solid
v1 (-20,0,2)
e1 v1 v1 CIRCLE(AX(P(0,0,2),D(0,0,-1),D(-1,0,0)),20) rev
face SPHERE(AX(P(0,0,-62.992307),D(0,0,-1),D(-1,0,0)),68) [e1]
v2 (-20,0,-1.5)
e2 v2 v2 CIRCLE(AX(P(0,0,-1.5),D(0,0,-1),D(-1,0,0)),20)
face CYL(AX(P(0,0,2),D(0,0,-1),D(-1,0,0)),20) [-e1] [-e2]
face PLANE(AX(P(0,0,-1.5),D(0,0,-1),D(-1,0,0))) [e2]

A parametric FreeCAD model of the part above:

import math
import FreeCAD as App
import Part
import Sketcher
from FreeCAD import Vector

doc = App.newDocument("Part")
body = doc.addObject("PartDesign::Body", "Body")

# Sketch on XY plane
sketch1 = body.newObject("Sketcher::SketchObject", "Sketch")
sketch1.AttachmentSupport = (doc.getObject("XY_Plane"), [""])
sketch1.MapMode = "FlatFace"
sketch1.addGeometry(Part.Circle(Vector(0, 0, 0), Vector(0, 0, 1), 20), False)
sketch1.addConstraint([
    Sketcher.Constraint("Coincident", 0, 3, -1, 1),
    Sketcher.Constraint("Diameter", 0, 40.0),
])
pad1 = body.newObject("PartDesign::Pad", "Pad")
pad1.Profile = sketch1
pad1.Length = 2

# Sketch on YZ plane
sketch2 = body.newObject("Sketcher::SketchObject", "Sketch001")
sketch2.AttachmentSupport = (doc.getObject("YZ_Plane"), [""])
sketch2.MapMode = "FlatFace"
sketch2.addGeometry([
    Part.LineSegment(Vector(-20, 2, 0), Vector(20, 2, 0)),
    Part.ArcOfCircle(Part.Circle(Vector(0, -63, 0), Vector(0, 0, 1), 68), math.radians(73), math.radians(107)),
], False)
sketch2.addGeometry(Part.LineSegment(Vector(20, -63, 0), Vector(-20, -63, 0)), True)  # axis
sketch2.addConstraint([
    Sketcher.Constraint("Coincident", 0, 1, 1, 2),
    Sketcher.Constraint("Coincident", 1, 1, 0, 2),
    Sketcher.Constraint("Horizontal", 0),
    Sketcher.Constraint("Horizontal", 2),
    Sketcher.Constraint("PointOnObject", 1, 3, -2),
    Sketcher.Constraint("Horizontal", 1, 3, 2, 1),
    Sketcher.Constraint("Vertical", 1, 1, 2, 1),
    Sketcher.Constraint("Vertical", 0, 1, 2, 2),
    Sketcher.Constraint("Radius", 1, 68.0),
    Sketcher.Constraint("DistanceX", 0, 1, 0, 2, 40.0),
    Sketcher.Constraint("DistanceY", -1, 1, 0, 1, 2.0),
])
revolution = body.newObject("PartDesign::Revolution", "Revolution")
revolution.Profile = sketch2
revolution.ReferenceAxis = (sketch2, ["Axis0"])
revolution.Angle = 360

# Sketch on XZ plane
sketch3 = body.newObject("Sketcher::SketchObject", "Sketch002")
sketch3.AttachmentSupport = (doc.getObject("XZ_Plane"), [""])
sketch3.MapMode = "FlatFace"
sketch3.addGeometry([
    Part.LineSegment(Vector(-76, -19, 0), Vector(76, -19, 0)),  # 0
    Part.LineSegment(Vector(76, -19, 0), Vector(76, -109, 0)),  # 1
    Part.LineSegment(Vector(76, -109, 0), Vector(96, -109, 0)),  # 2
    Part.LineSegment(Vector(96, -109, 0), Vector(96, -198, 0)),  # 3
    Part.LineSegment(Vector(96, -198, 0), Vector(-76, -198, 0)),  # 4
    Part.LineSegment(Vector(-76, -198, 0), Vector(-76, -19, 0)),  # 5
], False)
sketch3.addConstraint([
    Sketcher.Constraint("Coincident", 0, 2, 1, 1),
    Sketcher.Constraint("Coincident", 1, 2, 2, 1),
    Sketcher.Constraint("Coincident", 2, 2, 3, 1),
    Sketcher.Constraint("Coincident", 3, 2, 4, 1),
    Sketcher.Constraint("Coincident", 4, 2, 5, 1),
    Sketcher.Constraint("Coincident", 5, 2, 0, 1),
    Sketcher.Constraint("Horizontal", 0),
    Sketcher.Constraint("Vertical", 1),
    Sketcher.Constraint("Horizontal", 2),
    Sketcher.Constraint("Vertical", 3),
    Sketcher.Constraint("Horizontal", 4),
    Sketcher.Constraint("Vertical", 5),
    Sketcher.Constraint("DistanceX", 2, 1, 2, 2, 20.078899),
    Sketcher.Constraint("DistanceY", 3, 2, 3, 1, 88.745051),
    Sketcher.Constraint("DistanceX", 0, 1, 0, 2, 152.812085),
    Sketcher.Constraint("DistanceY", 1, 2, 1, 1, 89.520623),
    Sketcher.Constraint("DistanceX", -1, 1, 2, 2, 96.484942),
    Sketcher.Constraint("DistanceY", 3, 2, -1, 1, 197.624529),
])
pocket1 = body.newObject("PartDesign::Pocket", "Pocket")
pocket1.Profile = sketch3
pocket1.Type = "ThroughAll"
pocket1.Midplane = True

# Sketch on XY plane
sketch4 = body.newObject("Sketcher::SketchObject", "Sketch003")
sketch4.AttachmentSupport = (doc.getObject("XY_Plane"), [""])
sketch4.MapMode = "FlatFace"
sketch4.addGeometry(Part.Circle(Vector(0, 0, 0), Vector(0, 0, 1), 20), False)
sketch4.addConstraint([
    Sketcher.Constraint("Coincident", 0, 3, -1, 1),
    Sketcher.Constraint("Diameter", 0, 40.0),
])
pad2 = body.newObject("PartDesign::Pad", "Pad001")
pad2.Profile = sketch4
pad2.Length = 2

# Sketch on XY plane
sketch5 = body.newObject("Sketcher::SketchObject", "Sketch004")
sketch5.AttachmentSupport = (doc.getObject("XY_Plane"), [""])
sketch5.MapMode = "FlatFace"
sketch5.addGeometry([
    Part.ArcOfCircle(Part.Circle(Vector(0, 0, 0), Vector(0, 0, 1), 20), math.radians(37), math.radians(90)),  # 0
    Part.LineSegment(Vector(0, 20, 0), Vector(71, 20, 0)),  # 1
    Part.LineSegment(Vector(71, 20, 0), Vector(71, -20, 0)),  # 2
    Part.LineSegment(Vector(71, -20, 0), Vector(0, -20, 0)),  # 3
    Part.ArcOfCircle(Part.Circle(Vector(0, 0, 0), Vector(0, 0, 1), 20), math.radians(-90), math.radians(-37)),  # 4
    Part.ArcOfCircle(Part.Circle(Vector(0, 0, 0), Vector(0, 0, 1), 20), math.radians(-37), math.radians(37)),  # 5
    Part.LineSegment(Vector(-71, -20, 0), Vector(-71, 20, 0)),  # 6
    Part.LineSegment(Vector(-71, 20, 0), Vector(0, 20, 0)),  # 7
    Part.ArcOfCircle(Part.Circle(Vector(0, 0, 0), Vector(0, 0, 1), 20), math.radians(90), math.radians(143)),  # 8
    Part.ArcOfCircle(Part.Circle(Vector(0, 0, 0), Vector(0, 0, 1), 20), math.radians(143), math.radians(180)),  # 9
    Part.ArcOfCircle(Part.Circle(Vector(0, 0, 0), Vector(0, 0, 1), 20), math.radians(-180), math.radians(-143)),  # 10
    Part.ArcOfCircle(Part.Circle(Vector(0, 0, 0), Vector(0, 0, 1), 20), math.radians(-143), math.radians(-90)),  # 11
    Part.LineSegment(Vector(0, -20, 0), Vector(-71, -20, 0)),  # 12
], False)
sketch5.addConstraint([
    Sketcher.Constraint("Tangent", 0, 2, 1, 1),
    Sketcher.Constraint("Coincident", 1, 2, 2, 1),
    Sketcher.Constraint("Coincident", 2, 2, 3, 1),
    Sketcher.Constraint("Tangent", 3, 2, 4, 1),
    Sketcher.Constraint("Tangent", 4, 2, 5, 1),
    Sketcher.Constraint("Tangent", 5, 2, 0, 1),
    Sketcher.Constraint("Coincident", 6, 2, 7, 1),
    Sketcher.Constraint("Tangent", 7, 2, 8, 1),
    Sketcher.Constraint("Tangent", 8, 2, 9, 1),
    Sketcher.Constraint("Tangent", 9, 2, 10, 1),
    Sketcher.Constraint("Tangent", 10, 2, 11, 1),
    Sketcher.Constraint("Tangent", 11, 2, 12, 1),
    Sketcher.Constraint("Coincident", 12, 2, 6, 1),
    Sketcher.Constraint("Horizontal", 1),
    Sketcher.Constraint("Vertical", 2),
    Sketcher.Constraint("Horizontal", 3),
    Sketcher.Constraint("Vertical", 6),
    Sketcher.Constraint("Horizontal", 7),
    Sketcher.Constraint("Horizontal", 12),
    Sketcher.Constraint("Coincident", 0, 3, -1, 1),
    Sketcher.Constraint("Coincident", 4, 3, -1, 1),
    Sketcher.Constraint("Coincident", 8, 3, -1, 1),
    Sketcher.Constraint("Coincident", 10, 3, -1, 1),
    Sketcher.Constraint("Coincident", 11, 2, 3, 2),
    Sketcher.Constraint("PointOnObject", 9, 2, -1),
    Sketcher.Constraint("Horizontal", 5, 2, 8, 2),
    Sketcher.Constraint("Horizontal", 4, 2, 10, 2),
    Sketcher.Constraint("Vertical", 4, 2, 5, 2),
    Sketcher.Constraint("Equal", 3, 7),
    Sketcher.Constraint("Radius", 0, 20.0),
    Sketcher.Constraint("DistanceX", 1, 1, 1, 2, 70.945492),
    Sketcher.Constraint("DistanceX", -1, 1, 4, 2, 15.999038),
])
pocket2 = body.newObject("PartDesign::Pocket", "Pocket001")
pocket2.Profile = sketch5
pocket2.Type = "ThroughAll"
pocket2.Midplane = True

# Sketch on XY plane
sketch6 = body.newObject("Sketcher::SketchObject", "Sketch005")
sketch6.AttachmentSupport = (doc.getObject("XY_Plane"), [""])
sketch6.MapMode = "FlatFace"
sketch6.AttachmentOffset = App.Placement(Vector(0, 0, -1.5), App.Rotation())
sketch6.addGeometry(Part.Circle(Vector(0, 0, 0), Vector(0, 0, 1), 20), False)
sketch6.addConstraint([
    Sketcher.Constraint("Coincident", 0, 3, -1, 1),
    Sketcher.Constraint("Diameter", 0, 40.0),
])
pad3 = body.newObject("PartDesign::Pad", "Pad002")
pad3.Profile = sketch6
pad3.Length = 1.5

doc.recompute()
